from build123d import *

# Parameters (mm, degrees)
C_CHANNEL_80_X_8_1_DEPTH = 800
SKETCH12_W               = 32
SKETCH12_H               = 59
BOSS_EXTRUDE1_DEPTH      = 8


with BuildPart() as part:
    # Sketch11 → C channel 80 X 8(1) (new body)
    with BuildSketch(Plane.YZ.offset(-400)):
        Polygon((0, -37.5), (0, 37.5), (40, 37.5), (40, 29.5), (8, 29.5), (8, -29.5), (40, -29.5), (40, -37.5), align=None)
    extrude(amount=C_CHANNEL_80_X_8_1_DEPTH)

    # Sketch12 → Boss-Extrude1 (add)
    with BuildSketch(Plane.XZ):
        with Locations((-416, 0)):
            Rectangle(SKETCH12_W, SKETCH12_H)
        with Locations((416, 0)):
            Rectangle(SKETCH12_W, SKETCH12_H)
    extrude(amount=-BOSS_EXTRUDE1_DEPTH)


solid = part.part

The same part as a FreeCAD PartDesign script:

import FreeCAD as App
import Part
import Sketcher

V = App.Vector

doc = App.newDocument("Part")
body = doc.addObject("PartDesign::Body", "Body")

# Sketch on YZ plane
sketch1 = doc.addObject("Sketcher::SketchObject", "Sketch")
body.addObject(sketch1)
sketch1.AttachmentSupport = (doc.YZ_Plane, [""])
sketch1.MapMode = "FlatFace"
sketch1.AttachmentOffset = App.Placement(V(0, 0, -400), App.Rotation())
sketch1.addGeometry([
    Part.LineSegment(V(0, 38, 0), V(0, -38, 0)),  # 0
    Part.LineSegment(V(0, -38, 0), V(40, -38, 0)),  # 1
    Part.LineSegment(V(40, -38, 0), V(40, -30, 0)),  # 2
    Part.LineSegment(V(40, -30, 0), V(8, -30, 0)),  # 3
    Part.LineSegment(V(8, -30, 0), V(8, 30, 0)),  # 4
    Part.LineSegment(V(8, 30, 0), V(40, 30, 0)),  # 5
    Part.LineSegment(V(40, 30, 0), V(40, 38, 0)),  # 6
    Part.LineSegment(V(40, 38, 0), V(0, 38, 0)),  # 7
], False)
sketch1.addConstraint([
    Sketcher.Constraint("Coincident", 0, 2, 1, 1),
    Sketcher.Constraint("Coincident", 1, 2, 2, 1),
    Sketcher.Constraint("Coincident", 2, 2, 3, 1),
    Sketcher.Constraint("Coincident", 3, 2, 4, 1),
    Sketcher.Constraint("Coincident", 4, 2, 5, 1),
    Sketcher.Constraint("Coincident", 5, 2, 6, 1),
    Sketcher.Constraint("Coincident", 6, 2, 7, 1),
    Sketcher.Constraint("Coincident", 7, 2, 0, 1),
    Sketcher.Constraint("Vertical", 0),
    Sketcher.Constraint("Horizontal", 1),
    Sketcher.Constraint("Vertical", 2),
    Sketcher.Constraint("Horizontal", 3),
    Sketcher.Constraint("Vertical", 4),
    Sketcher.Constraint("Horizontal", 5),
    Sketcher.Constraint("Vertical", 6),
    Sketcher.Constraint("Horizontal", 7),
    Sketcher.Constraint("Symmetric", 0, 2, 7, 2, -1, 1),
    Sketcher.Constraint("Symmetric", 2, 2, 5, 2, -1),
    Sketcher.Constraint("DistanceX", 1, 1, 1, 2, 40.0),
    Sketcher.Constraint("DistanceX", 3, 2, 3, 1, 32.0),
    Sketcher.Constraint("DistanceY", 0, 2, 0, 1, 75.0),
    Sketcher.Constraint("DistanceY", 2, 1, 2, 2, 8.0),
])
pad1 = doc.addObject("PartDesign::Pad", "Pad")
body.addObject(pad1)
pad1.Profile = sketch1
pad1.Length = 800

# Sketch on XZ plane
sketch2 = doc.addObject("Sketcher::SketchObject", "Sketch001")
body.addObject(sketch2)
sketch2.AttachmentSupport = (doc.XZ_Plane, [""])
sketch2.MapMode = "FlatFace"
sketch2.addGeometry([
    Part.LineSegment(V(-432, 30, 0), V(-432, -30, 0)),  # 0
    Part.LineSegment(V(-432, -30, 0), V(-400, -30, 0)),  # 1
    Part.LineSegment(V(-400, -30, 0), V(-400, 30, 0)),  # 2
    Part.LineSegment(V(-400, 30, 0), V(-432, 30, 0)),  # 3
    Part.LineSegment(V(400, 30, 0), V(400, -30, 0)),  # 4
    Part.LineSegment(V(400, -30, 0), V(432, -30, 0)),  # 5
    Part.LineSegment(V(432, -30, 0), V(432, 30, 0)),  # 6
    Part.LineSegment(V(432, 30, 0), V(400, 30, 0)),  # 7
], False)
sketch2.addConstraint([
    Sketcher.Constraint("Coincident", 0, 2, 1, 1),
    Sketcher.Constraint("Coincident", 1, 2, 2, 1),
    Sketcher.Constraint("Coincident", 2, 2, 3, 1),
    Sketcher.Constraint("Coincident", 3, 2, 0, 1),
    Sketcher.Constraint("Coincident", 4, 2, 5, 1),
    Sketcher.Constraint("Coincident", 5, 2, 6, 1),
    Sketcher.Constraint("Coincident", 6, 2, 7, 1),
    Sketcher.Constraint("Coincident", 7, 2, 4, 1),
    Sketcher.Constraint("Vertical", 0),
    Sketcher.Constraint("Horizontal", 1),
    Sketcher.Constraint("Vertical", 2),
    Sketcher.Constraint("Horizontal", 3),
    Sketcher.Constraint("Vertical", 4),
    Sketcher.Constraint("Horizontal", 5),
    Sketcher.Constraint("Vertical", 6),
    Sketcher.Constraint("Horizontal", 7),
    Sketcher.Constraint("Symmetric", 2, 2, 4, 2, -1, 1),
    Sketcher.Constraint("Symmetric", 0, 2, 6, 2, -1, 1),
    Sketcher.Constraint("Horizontal", 1, 2, 4, 2),
    Sketcher.Constraint("DistanceX", 1, 1, 1, 2, 32.0),
    Sketcher.Constraint("DistanceY", 0, 2, 0, 1, 59.0),
    Sketcher.Constraint("DistanceX", 0, 2, -1, 1, 432.0),
])
pad2 = doc.addObject("PartDesign::Pad", "Pad001")
body.addObject(pad2)
pad2.Profile = sketch2
pad2.Length = 8
pad2.Reversed = True

doc.recompute()
